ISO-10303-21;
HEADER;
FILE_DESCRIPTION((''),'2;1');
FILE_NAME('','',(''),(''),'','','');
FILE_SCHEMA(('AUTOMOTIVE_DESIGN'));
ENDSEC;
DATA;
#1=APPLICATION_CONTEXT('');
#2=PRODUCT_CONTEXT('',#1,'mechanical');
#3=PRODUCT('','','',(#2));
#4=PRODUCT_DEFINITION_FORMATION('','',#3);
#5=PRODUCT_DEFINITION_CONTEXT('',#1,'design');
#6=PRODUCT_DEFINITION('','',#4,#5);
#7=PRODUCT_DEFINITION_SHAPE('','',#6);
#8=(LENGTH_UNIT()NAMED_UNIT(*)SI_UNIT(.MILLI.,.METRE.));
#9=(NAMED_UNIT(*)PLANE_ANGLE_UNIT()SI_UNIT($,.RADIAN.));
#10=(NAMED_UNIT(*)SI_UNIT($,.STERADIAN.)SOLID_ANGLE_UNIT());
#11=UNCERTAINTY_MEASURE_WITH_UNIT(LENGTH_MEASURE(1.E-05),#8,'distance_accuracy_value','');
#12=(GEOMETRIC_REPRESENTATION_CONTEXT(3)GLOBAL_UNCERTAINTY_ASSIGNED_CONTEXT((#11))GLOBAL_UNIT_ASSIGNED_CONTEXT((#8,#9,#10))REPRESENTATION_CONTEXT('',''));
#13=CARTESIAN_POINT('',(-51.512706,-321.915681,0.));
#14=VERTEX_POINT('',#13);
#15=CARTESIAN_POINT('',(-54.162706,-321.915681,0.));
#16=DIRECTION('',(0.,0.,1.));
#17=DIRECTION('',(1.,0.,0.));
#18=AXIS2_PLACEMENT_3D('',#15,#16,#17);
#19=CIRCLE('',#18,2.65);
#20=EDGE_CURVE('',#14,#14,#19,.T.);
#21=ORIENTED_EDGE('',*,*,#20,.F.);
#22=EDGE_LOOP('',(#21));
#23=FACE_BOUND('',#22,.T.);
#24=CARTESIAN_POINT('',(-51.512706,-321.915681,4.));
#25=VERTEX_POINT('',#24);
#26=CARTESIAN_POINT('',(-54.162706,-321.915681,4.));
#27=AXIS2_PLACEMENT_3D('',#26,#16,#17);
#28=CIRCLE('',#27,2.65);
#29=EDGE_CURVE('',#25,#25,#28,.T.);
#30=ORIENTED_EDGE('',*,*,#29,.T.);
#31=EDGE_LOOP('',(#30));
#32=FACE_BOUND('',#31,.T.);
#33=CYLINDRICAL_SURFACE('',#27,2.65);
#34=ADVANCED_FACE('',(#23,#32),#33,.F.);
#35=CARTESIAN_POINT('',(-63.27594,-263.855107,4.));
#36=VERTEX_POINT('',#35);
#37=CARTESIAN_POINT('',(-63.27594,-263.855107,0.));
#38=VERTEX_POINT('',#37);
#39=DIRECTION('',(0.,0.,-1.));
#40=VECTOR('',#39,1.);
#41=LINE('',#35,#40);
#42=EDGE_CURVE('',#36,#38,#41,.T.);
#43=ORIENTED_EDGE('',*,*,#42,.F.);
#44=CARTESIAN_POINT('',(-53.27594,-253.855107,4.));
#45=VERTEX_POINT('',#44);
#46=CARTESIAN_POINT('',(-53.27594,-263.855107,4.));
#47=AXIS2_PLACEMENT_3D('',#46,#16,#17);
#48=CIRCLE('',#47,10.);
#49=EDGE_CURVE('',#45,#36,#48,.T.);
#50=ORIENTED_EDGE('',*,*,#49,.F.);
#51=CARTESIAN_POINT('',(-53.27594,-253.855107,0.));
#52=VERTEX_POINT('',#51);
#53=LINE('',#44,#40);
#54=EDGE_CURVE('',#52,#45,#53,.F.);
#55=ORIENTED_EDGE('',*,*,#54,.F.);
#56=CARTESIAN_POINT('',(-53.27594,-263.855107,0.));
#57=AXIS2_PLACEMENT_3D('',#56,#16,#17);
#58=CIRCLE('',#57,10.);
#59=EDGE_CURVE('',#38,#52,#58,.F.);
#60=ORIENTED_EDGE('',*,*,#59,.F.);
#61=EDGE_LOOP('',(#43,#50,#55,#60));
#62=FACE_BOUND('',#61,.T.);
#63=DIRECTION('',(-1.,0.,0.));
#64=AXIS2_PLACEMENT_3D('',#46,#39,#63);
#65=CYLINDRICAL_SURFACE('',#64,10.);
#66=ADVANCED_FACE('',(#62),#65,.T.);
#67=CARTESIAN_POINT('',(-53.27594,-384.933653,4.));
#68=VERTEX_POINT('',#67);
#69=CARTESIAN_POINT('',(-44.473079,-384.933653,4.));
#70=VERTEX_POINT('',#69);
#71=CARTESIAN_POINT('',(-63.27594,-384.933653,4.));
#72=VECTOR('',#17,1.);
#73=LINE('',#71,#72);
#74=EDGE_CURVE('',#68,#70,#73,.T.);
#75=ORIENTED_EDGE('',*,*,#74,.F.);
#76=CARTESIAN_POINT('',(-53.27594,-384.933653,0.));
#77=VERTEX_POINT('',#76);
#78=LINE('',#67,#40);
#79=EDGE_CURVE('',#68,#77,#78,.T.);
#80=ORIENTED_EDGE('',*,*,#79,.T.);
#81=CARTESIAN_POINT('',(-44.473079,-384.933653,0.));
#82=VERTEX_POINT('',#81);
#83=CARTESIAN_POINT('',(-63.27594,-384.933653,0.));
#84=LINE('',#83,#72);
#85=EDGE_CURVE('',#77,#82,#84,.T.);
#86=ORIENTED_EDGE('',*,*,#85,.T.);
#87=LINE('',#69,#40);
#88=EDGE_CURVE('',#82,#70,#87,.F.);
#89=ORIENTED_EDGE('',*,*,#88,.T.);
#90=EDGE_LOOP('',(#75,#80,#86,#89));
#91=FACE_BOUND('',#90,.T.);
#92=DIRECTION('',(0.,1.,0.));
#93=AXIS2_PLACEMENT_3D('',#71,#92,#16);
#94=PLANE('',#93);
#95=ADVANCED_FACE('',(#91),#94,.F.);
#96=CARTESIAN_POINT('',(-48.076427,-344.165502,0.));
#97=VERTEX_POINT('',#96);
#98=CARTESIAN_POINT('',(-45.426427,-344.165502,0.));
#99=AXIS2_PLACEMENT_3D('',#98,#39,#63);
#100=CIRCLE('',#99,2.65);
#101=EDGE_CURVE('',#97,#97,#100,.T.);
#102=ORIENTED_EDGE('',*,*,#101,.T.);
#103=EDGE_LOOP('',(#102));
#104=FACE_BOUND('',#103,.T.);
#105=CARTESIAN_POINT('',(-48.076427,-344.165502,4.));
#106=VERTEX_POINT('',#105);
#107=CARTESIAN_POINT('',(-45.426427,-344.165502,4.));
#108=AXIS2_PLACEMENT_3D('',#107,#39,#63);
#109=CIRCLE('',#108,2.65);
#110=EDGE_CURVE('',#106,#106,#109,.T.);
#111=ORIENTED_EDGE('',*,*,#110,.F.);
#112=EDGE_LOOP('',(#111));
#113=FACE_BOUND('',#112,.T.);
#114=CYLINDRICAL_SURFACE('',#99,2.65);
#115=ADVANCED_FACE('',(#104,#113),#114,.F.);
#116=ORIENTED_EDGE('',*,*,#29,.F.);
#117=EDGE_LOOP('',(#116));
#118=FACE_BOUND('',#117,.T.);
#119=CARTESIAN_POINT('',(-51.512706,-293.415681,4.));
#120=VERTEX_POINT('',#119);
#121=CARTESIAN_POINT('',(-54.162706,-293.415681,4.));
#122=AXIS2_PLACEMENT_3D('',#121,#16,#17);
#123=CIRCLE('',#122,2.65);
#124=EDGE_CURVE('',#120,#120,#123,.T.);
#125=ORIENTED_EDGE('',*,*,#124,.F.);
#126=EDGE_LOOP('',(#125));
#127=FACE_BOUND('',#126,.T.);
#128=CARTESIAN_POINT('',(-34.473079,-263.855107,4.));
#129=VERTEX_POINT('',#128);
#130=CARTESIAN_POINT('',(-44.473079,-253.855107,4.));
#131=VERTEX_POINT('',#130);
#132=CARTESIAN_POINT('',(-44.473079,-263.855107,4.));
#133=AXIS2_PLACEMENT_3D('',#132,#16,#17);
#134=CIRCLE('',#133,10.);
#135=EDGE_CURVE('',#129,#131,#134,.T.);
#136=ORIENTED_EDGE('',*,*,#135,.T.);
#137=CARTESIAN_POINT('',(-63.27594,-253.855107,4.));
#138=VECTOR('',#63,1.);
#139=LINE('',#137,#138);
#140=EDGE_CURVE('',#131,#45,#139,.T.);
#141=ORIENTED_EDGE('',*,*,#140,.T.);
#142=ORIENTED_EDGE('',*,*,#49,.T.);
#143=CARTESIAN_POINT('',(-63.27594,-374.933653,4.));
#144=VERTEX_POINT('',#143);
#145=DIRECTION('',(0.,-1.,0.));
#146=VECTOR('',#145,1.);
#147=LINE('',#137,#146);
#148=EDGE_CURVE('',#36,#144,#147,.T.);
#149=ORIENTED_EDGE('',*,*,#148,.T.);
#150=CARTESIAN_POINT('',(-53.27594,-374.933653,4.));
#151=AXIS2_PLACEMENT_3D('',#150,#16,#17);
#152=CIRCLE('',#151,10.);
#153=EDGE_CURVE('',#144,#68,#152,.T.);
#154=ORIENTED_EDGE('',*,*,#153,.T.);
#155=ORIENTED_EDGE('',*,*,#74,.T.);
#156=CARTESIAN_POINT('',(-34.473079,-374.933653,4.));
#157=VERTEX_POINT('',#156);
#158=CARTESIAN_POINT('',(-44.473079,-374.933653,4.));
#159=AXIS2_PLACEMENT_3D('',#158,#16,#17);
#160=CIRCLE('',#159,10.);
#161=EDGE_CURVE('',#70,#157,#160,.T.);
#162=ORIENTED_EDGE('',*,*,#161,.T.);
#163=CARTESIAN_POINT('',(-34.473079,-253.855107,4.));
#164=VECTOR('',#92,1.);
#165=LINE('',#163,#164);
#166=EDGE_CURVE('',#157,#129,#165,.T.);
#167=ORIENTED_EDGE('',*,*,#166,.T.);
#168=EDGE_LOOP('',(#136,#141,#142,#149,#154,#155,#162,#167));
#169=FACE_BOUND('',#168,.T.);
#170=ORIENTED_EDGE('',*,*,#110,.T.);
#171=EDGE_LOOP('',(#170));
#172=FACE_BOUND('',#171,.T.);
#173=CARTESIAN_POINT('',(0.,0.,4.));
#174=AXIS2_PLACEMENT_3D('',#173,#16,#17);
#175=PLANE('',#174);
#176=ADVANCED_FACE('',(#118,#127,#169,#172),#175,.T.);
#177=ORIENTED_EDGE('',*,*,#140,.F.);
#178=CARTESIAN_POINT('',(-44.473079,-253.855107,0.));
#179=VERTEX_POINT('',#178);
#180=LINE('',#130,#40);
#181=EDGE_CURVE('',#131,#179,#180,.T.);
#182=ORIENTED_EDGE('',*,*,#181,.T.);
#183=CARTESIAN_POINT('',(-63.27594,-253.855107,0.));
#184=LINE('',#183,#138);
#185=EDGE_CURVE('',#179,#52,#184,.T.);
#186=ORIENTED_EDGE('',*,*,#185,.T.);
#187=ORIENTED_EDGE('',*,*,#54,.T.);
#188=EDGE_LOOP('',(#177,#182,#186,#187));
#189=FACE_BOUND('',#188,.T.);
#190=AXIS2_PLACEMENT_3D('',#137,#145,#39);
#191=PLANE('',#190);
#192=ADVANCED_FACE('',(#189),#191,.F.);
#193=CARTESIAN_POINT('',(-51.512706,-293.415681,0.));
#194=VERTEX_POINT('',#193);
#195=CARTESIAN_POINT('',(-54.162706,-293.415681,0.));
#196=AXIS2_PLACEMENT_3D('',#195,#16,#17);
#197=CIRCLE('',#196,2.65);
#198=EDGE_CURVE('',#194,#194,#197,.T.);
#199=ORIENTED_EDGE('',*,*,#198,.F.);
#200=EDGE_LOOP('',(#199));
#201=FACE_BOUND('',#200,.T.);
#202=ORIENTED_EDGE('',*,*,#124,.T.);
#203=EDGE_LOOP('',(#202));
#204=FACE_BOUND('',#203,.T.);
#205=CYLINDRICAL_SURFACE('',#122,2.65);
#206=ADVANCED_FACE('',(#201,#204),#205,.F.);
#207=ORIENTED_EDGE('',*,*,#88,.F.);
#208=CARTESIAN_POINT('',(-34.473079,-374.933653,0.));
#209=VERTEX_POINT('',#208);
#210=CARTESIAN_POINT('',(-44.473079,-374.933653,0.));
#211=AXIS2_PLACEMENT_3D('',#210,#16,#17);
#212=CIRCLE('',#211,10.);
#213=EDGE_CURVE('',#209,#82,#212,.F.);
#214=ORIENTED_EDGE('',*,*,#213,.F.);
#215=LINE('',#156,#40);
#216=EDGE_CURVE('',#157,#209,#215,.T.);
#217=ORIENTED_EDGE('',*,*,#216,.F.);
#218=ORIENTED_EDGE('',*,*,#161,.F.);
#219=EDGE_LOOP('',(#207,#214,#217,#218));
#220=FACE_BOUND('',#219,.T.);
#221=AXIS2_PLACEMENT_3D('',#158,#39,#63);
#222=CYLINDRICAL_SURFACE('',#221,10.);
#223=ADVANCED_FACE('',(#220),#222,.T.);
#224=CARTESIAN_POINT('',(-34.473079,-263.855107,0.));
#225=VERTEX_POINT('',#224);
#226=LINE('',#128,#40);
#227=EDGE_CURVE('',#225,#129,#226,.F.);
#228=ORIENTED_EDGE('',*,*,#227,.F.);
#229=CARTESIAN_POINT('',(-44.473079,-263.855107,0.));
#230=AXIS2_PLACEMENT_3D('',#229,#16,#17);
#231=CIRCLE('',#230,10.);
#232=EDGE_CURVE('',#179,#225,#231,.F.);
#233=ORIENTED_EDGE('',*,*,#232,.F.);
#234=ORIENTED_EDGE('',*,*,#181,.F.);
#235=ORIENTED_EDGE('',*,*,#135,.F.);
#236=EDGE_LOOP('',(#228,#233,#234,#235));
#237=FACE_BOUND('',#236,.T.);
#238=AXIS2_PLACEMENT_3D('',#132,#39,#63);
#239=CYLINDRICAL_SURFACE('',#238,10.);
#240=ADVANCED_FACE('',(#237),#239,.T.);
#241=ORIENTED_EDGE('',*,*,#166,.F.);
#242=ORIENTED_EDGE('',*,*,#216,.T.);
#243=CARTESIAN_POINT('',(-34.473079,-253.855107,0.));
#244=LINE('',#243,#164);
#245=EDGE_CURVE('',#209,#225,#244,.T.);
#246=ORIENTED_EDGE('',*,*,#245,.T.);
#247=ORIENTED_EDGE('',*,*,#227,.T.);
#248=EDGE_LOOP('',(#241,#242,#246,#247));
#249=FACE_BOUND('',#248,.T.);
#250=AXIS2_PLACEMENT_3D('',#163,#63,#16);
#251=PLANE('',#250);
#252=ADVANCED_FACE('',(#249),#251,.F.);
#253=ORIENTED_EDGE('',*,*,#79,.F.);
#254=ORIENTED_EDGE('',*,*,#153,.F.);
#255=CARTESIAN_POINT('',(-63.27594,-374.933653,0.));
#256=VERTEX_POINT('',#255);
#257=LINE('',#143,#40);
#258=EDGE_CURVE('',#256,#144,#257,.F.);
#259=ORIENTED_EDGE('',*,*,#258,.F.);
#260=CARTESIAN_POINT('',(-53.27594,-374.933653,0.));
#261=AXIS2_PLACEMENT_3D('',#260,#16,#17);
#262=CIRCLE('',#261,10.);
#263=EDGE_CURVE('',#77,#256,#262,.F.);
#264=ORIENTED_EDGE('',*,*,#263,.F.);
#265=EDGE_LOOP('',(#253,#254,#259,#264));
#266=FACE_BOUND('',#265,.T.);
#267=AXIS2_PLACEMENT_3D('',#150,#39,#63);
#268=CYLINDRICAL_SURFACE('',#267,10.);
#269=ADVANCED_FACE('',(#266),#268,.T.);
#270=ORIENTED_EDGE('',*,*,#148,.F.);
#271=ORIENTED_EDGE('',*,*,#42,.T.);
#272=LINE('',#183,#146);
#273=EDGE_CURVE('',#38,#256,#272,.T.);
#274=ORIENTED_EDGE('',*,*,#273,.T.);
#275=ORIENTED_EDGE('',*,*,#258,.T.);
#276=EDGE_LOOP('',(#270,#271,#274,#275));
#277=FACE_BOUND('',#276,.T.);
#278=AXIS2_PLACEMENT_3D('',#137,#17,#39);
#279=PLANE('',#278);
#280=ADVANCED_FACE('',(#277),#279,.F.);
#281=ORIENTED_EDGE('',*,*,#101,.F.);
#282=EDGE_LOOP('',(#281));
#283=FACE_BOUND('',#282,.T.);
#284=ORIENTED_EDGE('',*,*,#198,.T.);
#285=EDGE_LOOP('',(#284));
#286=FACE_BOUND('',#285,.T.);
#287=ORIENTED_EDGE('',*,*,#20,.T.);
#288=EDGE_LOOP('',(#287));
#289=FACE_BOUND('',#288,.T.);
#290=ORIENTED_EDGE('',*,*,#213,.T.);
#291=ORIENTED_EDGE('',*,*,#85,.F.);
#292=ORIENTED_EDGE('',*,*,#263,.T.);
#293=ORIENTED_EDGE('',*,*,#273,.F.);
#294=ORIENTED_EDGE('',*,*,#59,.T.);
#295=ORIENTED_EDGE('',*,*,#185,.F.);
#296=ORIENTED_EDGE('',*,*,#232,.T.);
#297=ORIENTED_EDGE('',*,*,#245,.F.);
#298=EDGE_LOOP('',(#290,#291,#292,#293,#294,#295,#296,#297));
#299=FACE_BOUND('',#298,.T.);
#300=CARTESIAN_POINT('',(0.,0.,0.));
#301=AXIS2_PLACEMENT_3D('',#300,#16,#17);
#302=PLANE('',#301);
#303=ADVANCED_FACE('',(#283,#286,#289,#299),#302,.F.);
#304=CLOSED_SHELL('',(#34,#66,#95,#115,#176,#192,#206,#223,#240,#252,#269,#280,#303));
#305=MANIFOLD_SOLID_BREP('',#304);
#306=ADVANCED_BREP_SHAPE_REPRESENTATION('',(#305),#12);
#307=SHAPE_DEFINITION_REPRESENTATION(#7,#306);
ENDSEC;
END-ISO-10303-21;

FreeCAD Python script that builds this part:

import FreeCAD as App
import Part
import Sketcher


def edges_at(feature, points):
    """Names of the edges that pass closest to the given points."""
    edges = feature.Shape.Edges
    near = lambda p: min(range(len(edges)), key=lambda i: edges[i].distToShape(Part.Vertex(*p))[0])
    return sorted({f"Edge{near(p) + 1}" for p in points})

doc = App.newDocument("Part")
body = doc.addObject("PartDesign::Body", "Body")

# Sketch on XY plane
sketch1 = body.newObject("Sketcher::SketchObject", "Sketch")
sketch1.AttachmentSupport = (doc.getObject("XY_Plane"), [""])
sketch1.MapMode = "FlatFace"
sketch1.addGeometry(Part.LineSegment(App.Vector(-63, -254, 0), App.Vector(-63, -385, 0)), False)
sketch1.addGeometry(Part.LineSegment(App.Vector(-63, -385, 0), App.Vector(-34, -385, 0)), False)
sketch1.addGeometry(Part.LineSegment(App.Vector(-34, -385, 0), App.Vector(-34, -254, 0)), False)
sketch1.addGeometry(Part.LineSegment(App.Vector(-34, -254, 0), App.Vector(-63, -254, 0)), False)
sketch1.addConstraint(Sketcher.Constraint("Coincident", 0, 2, 1, 1))
sketch1.addConstraint(Sketcher.Constraint("Coincident", 1, 2, 2, 1))
sketch1.addConstraint(Sketcher.Constraint("Coincident", 2, 2, 3, 1))
sketch1.addConstraint(Sketcher.Constraint("Coincident", 3, 2, 0, 1))
sketch1.addConstraint(Sketcher.Constraint("Vertical", 0))
sketch1.addConstraint(Sketcher.Constraint("Horizontal", 1))
sketch1.addConstraint(Sketcher.Constraint("Vertical", 2))
sketch1.addConstraint(Sketcher.Constraint("Horizontal", 3))
sketch1.addConstraint(Sketcher.Constraint("DistanceX", 1, 1, 1, 2, 28.802862))
sketch1.addConstraint(Sketcher.Constraint("DistanceY", 0, 2, 0, 1, 131.078546))
sketch1.addConstraint(Sketcher.Constraint("DistanceX", 0, 2, -1, 1, 63.27594))
sketch1.addConstraint(Sketcher.Constraint("DistanceY", 0, 2, -1, 1, 384.933653))
pad1 = body.newObject("PartDesign::Pad", "Pad")
pad1.Profile = sketch1
pad1.Length = 4

# Sketch on XY plane
sketch2 = body.newObject("Sketcher::SketchObject", "Sketch001")
sketch2.AttachmentSupport = (doc.getObject("XY_Plane"), [""])
sketch2.MapMode = "FlatFace"
sketch2.AttachmentOffset = App.Placement(App.Vector(0, 0, 4), App.Rotation())
sketch2.addGeometry(Part.Circle(App.Vector(-54.2, -321.9, 0), App.Vector(0, 0, 1), 2.6), False)
sketch2.addGeometry(Part.Circle(App.Vector(-54.2, -293.4, 0), App.Vector(0, 0, 1), 2.6), False)
sketch2.addConstraint(Sketcher.Constraint("Equal", 0, 1))
sketch2.addConstraint(Sketcher.Constraint("Vertical", 0, 3, 1, 3))
sketch2.addConstraint(Sketcher.Constraint("Diameter", 0, 5.3))
sketch2.addConstraint(Sketcher.Constraint("DistanceY", 0, 3, 1, 3, 28.5))
sketch2.addConstraint(Sketcher.Constraint("DistanceY", 0, 3, -1, 1, 321.915681))
sketch2.addConstraint(Sketcher.Constraint("DistanceX", 0, 3, -1, 1, 54.162706))
doc.recompute()
hole = body.newObject("PartDesign::Hole", "Hole")
hole.Profile = sketch2
hole.ThreadType = "None"
hole.Diameter = 5.3
hole.DepthType = "ThroughAll"
doc.recompute()

fillet = body.newObject("PartDesign::Fillet", "Fillet")
fillet.Base = (hole, edges_at(hole, [
    (-63.276, -253.855, 2),
    (-34.473, -253.855, 2),
    (-34.473, -384.934, 2),
    (-63.276, -384.934, 2),
]))
fillet.Radius = 10

# Sketch on XY plane
sketch3 = body.newObject("Sketcher::SketchObject", "Sketch002")
sketch3.AttachmentSupport = (doc.getObject("XY_Plane"), [""])
sketch3.MapMode = "FlatFace"
sketch3.addGeometry(Part.Circle(App.Vector(-45.4, -344.2, 0), App.Vector(0, 0, 1), 2.6), False)
sketch3.addConstraint(Sketcher.Constraint("Diameter", 0, 5.3))
sketch3.addConstraint(Sketcher.Constraint("DistanceX", 0, 3, -1, 1, 45.426427))
sketch3.addConstraint(Sketcher.Constraint("DistanceY", 0, 3, -1, 1, 344.165502))
doc.recompute()
hole2 = body.newObject("PartDesign::Hole", "Hole001")
hole2.Profile = sketch3
hole2.ThreadType = "None"
hole2.Diameter = 5.3
hole2.DepthType = "ThroughAll"
hole2.Reversed = True

doc.recompute()
